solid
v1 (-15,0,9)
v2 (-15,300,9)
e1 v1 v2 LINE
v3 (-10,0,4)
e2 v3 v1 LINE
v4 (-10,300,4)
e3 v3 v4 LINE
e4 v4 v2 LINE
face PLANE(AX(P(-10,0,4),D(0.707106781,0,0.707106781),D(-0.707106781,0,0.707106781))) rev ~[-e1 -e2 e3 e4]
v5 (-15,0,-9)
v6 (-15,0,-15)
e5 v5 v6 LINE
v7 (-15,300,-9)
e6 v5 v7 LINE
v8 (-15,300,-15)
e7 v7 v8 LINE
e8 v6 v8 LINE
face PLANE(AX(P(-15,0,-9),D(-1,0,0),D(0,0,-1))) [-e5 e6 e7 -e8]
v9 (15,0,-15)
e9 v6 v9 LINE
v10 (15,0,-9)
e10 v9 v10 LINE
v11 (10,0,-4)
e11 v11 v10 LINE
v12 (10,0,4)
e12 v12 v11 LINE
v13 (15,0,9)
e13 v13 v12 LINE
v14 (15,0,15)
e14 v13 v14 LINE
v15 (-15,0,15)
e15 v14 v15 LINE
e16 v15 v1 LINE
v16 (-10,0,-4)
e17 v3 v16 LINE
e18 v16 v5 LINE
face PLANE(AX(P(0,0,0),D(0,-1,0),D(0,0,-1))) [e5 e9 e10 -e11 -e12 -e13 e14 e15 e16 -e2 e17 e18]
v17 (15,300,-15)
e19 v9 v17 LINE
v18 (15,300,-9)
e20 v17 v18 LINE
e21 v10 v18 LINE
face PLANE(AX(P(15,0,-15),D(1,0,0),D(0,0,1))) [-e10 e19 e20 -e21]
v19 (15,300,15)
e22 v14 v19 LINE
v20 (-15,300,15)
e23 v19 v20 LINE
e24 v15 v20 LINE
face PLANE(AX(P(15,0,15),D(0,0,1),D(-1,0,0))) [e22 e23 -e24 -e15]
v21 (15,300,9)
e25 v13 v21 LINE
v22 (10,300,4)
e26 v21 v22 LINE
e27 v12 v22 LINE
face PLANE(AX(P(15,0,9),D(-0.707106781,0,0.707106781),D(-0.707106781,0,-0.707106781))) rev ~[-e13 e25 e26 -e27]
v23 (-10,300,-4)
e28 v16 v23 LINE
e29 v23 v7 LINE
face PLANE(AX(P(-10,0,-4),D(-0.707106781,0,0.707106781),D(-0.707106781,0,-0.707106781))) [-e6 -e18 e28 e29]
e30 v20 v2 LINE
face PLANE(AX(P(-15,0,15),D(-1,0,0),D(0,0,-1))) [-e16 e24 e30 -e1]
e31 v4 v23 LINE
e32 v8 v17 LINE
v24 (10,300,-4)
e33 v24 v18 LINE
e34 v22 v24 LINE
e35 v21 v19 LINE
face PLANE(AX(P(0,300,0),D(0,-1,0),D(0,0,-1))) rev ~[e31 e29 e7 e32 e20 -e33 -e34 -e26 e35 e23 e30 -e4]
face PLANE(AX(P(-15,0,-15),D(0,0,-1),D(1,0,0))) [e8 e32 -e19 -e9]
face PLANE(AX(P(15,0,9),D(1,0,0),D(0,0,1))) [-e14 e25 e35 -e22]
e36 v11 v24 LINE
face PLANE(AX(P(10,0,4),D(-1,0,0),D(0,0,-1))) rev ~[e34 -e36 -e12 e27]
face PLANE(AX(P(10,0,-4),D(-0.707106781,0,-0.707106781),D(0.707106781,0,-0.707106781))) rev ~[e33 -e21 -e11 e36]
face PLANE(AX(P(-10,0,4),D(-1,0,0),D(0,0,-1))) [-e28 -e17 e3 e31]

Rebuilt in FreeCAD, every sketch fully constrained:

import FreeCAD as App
import Part
import Sketcher
from FreeCAD import Vector

doc = App.newDocument("Part")
body = doc.addObject("PartDesign::Body", "Body")

# Sketch on XZ plane
sketch1 = body.newObject("Sketcher::SketchObject", "Sketch")
sketch1.AttachmentSupport = (doc.getObject("XZ_Plane"), [""])
sketch1.MapMode = "FlatFace"
sketch1.addGeometry([
    Part.LineSegment(Vector(-15, -9, 0), Vector(-15, -15, 0)),  # 0
    Part.LineSegment(Vector(-15, -15, 0), Vector(15, -15, 0)),  # 1
    Part.LineSegment(Vector(15, -15, 0), Vector(15, -9, 0)),  # 2
    Part.LineSegment(Vector(15, -9, 0), Vector(10, -4, 0)),  # 3
    Part.LineSegment(Vector(10, -4, 0), Vector(10, 4, 0)),  # 4
    Part.LineSegment(Vector(10, 4, 0), Vector(15, 9, 0)),  # 5
    Part.LineSegment(Vector(15, 9, 0), Vector(15, 15, 0)),  # 6
    Part.LineSegment(Vector(15, 15, 0), Vector(-15, 15, 0)),  # 7
    Part.LineSegment(Vector(-15, 15, 0), Vector(-15, 9, 0)),  # 8
    Part.LineSegment(Vector(-15, 9, 0), Vector(-10, 4, 0)),  # 9
    Part.LineSegment(Vector(-10, 4, 0), Vector(-10, -4, 0)),  # 10
    Part.LineSegment(Vector(-10, -4, 0), Vector(-15, -9, 0)),  # 11
], False)
sketch1.addConstraint([
    Sketcher.Constraint("Coincident", 0, 2, 1, 1),
    Sketcher.Constraint("Coincident", 1, 2, 2, 1),
    Sketcher.Constraint("Coincident", 2, 2, 3, 1),
    Sketcher.Constraint("Coincident", 3, 2, 4, 1),
    Sketcher.Constraint("Coincident", 4, 2, 5, 1),
    Sketcher.Constraint("Coincident", 5, 2, 6, 1),
    Sketcher.Constraint("Coincident", 6, 2, 7, 1),
    Sketcher.Constraint("Coincident", 7, 2, 8, 1),
    Sketcher.Constraint("Coincident", 8, 2, 9, 1),
    Sketcher.Constraint("Coincident", 9, 2, 10, 1),
    Sketcher.Constraint("Coincident", 10, 2, 11, 1),
    Sketcher.Constraint("Coincident", 11, 2, 0, 1),
    Sketcher.Constraint("Vertical", 0),
    Sketcher.Constraint("Horizontal", 1),
    Sketcher.Constraint("Vertical", 2),
    Sketcher.Constraint("Vertical", 4),
    Sketcher.Constraint("Vertical", 6),
    Sketcher.Constraint("Horizontal", 7),
    Sketcher.Constraint("Vertical", 8),
    Sketcher.Constraint("Vertical", 10),
    Sketcher.Constraint("Symmetric", 0, 2, 6, 2, -1, 1),
    Sketcher.Constraint("Symmetric", 2, 2, 8, 2, -1, 1),
    Sketcher.Constraint("Symmetric", 3, 2, 9, 2, -1, 1),
    Sketcher.Constraint("Symmetric", 5, 2, 8, 2, -2),
    Sketcher.Constraint("Perpendicular", 3, 5),
    Sketcher.Constraint("Perpendicular", 9, 11),
    Sketcher.Constraint("Horizontal", 4, 2, 9, 2),
    Sketcher.Constraint("Horizontal", 3, 2, 10, 2),
    Sketcher.Constraint("DistanceX", -1, 1, 3, 2, 10.0),
    Sketcher.Constraint("DistanceX", 1, 1, 1, 2, 30.0),
    Sketcher.Constraint("DistanceY", 0, 2, 0, 1, 6.0),
    Sketcher.Constraint("DistanceY", 4, 1, 4, 2, 8.0),
])
pad1 = body.newObject("PartDesign::Pad", "Pad")
pad1.Profile = sketch1
pad1.Length = 300
pad1.Reversed = True

doc.recompute()
